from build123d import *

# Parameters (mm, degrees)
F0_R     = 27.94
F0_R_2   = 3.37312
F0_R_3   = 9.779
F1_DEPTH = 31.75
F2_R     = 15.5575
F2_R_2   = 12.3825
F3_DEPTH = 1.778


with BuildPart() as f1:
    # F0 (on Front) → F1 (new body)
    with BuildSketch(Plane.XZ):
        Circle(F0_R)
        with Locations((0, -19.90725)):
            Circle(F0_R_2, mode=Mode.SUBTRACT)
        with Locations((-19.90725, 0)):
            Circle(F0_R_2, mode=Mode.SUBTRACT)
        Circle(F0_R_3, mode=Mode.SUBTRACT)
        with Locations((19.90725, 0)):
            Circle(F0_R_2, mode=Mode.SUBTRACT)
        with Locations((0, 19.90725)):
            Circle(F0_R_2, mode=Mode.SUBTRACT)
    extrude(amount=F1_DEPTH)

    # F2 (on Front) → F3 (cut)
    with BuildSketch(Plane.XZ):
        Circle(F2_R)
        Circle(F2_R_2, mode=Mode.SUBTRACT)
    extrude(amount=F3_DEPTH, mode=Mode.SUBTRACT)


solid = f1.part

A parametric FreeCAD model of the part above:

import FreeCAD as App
import Part
import Sketcher
from FreeCAD import Vector
Q = App.Units.Quantity

doc = App.newDocument("Part")
params = doc.addObject("Spreadsheet::Sheet", "Params")
for row, (alias, value) in enumerate([
    ("sketch1_diameter", "2.2 in"),
    ("sketch1_diameter2", "0.77 in"),
    ("pad1_length", "1.25 in"),
    ("sketch2_diameter", "1.225 in"),
    ("sketch2_diameter2", "0.975 in"),
    ("pocket1_length", "0.07 in"),
], start=1):
    params.set(f"A{row}", alias)
    params.set(f"B{row}", "=" + value)
    params.setAlias(f"B{row}", alias)

body = doc.addObject("PartDesign::Body", "Body")

sketch1 = body.newObject("Sketcher::SketchObject", "Sketch")
sketch1.AttachmentSupport = (doc.getObject("XZ_Plane"), [""])
sketch1.MapMode = "FlatFace"
sketch1.addGeometry(Part.Circle(Vector(0, 0, 0), Vector(0, 0, 1), 27.9), False)
sketch1.addGeometry(Part.Circle(Vector(0, -19.9, 0), Vector(0, 0, 1), 3.4), False)
sketch1.addGeometry(Part.Circle(Vector(-19.9, 0, 0), Vector(0, 0, 1), 3.4), False)
sketch1.addGeometry(Part.Circle(Vector(0, 0, 0), Vector(0, 0, 1), 9.8), False)
sketch1.addGeometry(Part.Circle(Vector(19.9, 0, 0), Vector(0, 0, 1), 3.4), False)
sketch1.addGeometry(Part.Circle(Vector(0, 19.9, 0), Vector(0, 0, 1), 3.4), False)
sketch1.addConstraint(Sketcher.Constraint("Coincident", 0, 3, -1, 1))
sketch1.addConstraint(Sketcher.Constraint("Coincident", 3, 3, -1, 1))
sketch1.addConstraint(Sketcher.Constraint("Equal", 1, 2))
sketch1.addConstraint(Sketcher.Constraint("Equal", 2, 4))
sketch1.addConstraint(Sketcher.Constraint("Equal", 4, 5))
sketch1.addConstraint(Sketcher.Constraint("Symmetric", 2, 3, 4, 3, -1, 1))
sketch1.addConstraint(Sketcher.Constraint("Symmetric", 1, 3, 5, 3, -1, 1))
sketch1.addConstraint(Sketcher.Constraint("PointOnObject", 1, 3, -2))
sketch1.addConstraint(Sketcher.Constraint("PointOnObject", 2, 3, -1))
sketch1.addConstraint(Sketcher.Constraint("Diameter", 0, Q("2.2 in")))
sketch1.addConstraint(Sketcher.Constraint("Diameter", 3, Q("0.77 in")))
sketch1.addConstraint(Sketcher.Constraint("Diameter", 1, Q("0.2656 in")))
sketch1.addConstraint(Sketcher.Constraint("DistanceX", 2, 3, 4, 3, Q("1.5675 in")))
sketch1.addConstraint(Sketcher.Constraint("DistanceY", 1, 3, 5, 3, Q("1.5675 in")))
sketch1.setExpression("Constraints[9]", "Params.sketch1_diameter")
sketch1.setExpression("Constraints[10]", "Params.sketch1_diameter2")
pad1 = body.newObject("PartDesign::Pad", "Pad")
pad1.Profile = sketch1
pad1.setExpression("Length", "Params.pad1_length")

sketch2 = body.newObject("Sketcher::SketchObject", "Sketch001")
sketch2.AttachmentSupport = (doc.getObject("XZ_Plane"), [""])
sketch2.MapMode = "FlatFace"
sketch2.addGeometry(Part.Circle(Vector(0, 0, 0), Vector(0, 0, 1), 16), False)
sketch2.addGeometry(Part.Circle(Vector(0, 0, 0), Vector(0, 0, 1), 12), False)
sketch2.addConstraint(Sketcher.Constraint("Coincident", 0, 3, -1, 1))
sketch2.addConstraint(Sketcher.Constraint("Coincident", 1, 3, -1, 1))
sketch2.addConstraint(Sketcher.Constraint("Diameter", 0, Q("1.225 in")))
sketch2.addConstraint(Sketcher.Constraint("Diameter", 1, Q("0.975 in")))
sketch2.setExpression("Constraints[2]", "Params.sketch2_diameter")
sketch2.setExpression("Constraints[3]", "Params.sketch2_diameter2")
pocket1 = body.newObject("PartDesign::Pocket", "Pocket")
pocket1.Profile = sketch2
pocket1.setExpression("Length", "Params.pocket1_length")
pocket1.Reversed = True

doc.recompute()
